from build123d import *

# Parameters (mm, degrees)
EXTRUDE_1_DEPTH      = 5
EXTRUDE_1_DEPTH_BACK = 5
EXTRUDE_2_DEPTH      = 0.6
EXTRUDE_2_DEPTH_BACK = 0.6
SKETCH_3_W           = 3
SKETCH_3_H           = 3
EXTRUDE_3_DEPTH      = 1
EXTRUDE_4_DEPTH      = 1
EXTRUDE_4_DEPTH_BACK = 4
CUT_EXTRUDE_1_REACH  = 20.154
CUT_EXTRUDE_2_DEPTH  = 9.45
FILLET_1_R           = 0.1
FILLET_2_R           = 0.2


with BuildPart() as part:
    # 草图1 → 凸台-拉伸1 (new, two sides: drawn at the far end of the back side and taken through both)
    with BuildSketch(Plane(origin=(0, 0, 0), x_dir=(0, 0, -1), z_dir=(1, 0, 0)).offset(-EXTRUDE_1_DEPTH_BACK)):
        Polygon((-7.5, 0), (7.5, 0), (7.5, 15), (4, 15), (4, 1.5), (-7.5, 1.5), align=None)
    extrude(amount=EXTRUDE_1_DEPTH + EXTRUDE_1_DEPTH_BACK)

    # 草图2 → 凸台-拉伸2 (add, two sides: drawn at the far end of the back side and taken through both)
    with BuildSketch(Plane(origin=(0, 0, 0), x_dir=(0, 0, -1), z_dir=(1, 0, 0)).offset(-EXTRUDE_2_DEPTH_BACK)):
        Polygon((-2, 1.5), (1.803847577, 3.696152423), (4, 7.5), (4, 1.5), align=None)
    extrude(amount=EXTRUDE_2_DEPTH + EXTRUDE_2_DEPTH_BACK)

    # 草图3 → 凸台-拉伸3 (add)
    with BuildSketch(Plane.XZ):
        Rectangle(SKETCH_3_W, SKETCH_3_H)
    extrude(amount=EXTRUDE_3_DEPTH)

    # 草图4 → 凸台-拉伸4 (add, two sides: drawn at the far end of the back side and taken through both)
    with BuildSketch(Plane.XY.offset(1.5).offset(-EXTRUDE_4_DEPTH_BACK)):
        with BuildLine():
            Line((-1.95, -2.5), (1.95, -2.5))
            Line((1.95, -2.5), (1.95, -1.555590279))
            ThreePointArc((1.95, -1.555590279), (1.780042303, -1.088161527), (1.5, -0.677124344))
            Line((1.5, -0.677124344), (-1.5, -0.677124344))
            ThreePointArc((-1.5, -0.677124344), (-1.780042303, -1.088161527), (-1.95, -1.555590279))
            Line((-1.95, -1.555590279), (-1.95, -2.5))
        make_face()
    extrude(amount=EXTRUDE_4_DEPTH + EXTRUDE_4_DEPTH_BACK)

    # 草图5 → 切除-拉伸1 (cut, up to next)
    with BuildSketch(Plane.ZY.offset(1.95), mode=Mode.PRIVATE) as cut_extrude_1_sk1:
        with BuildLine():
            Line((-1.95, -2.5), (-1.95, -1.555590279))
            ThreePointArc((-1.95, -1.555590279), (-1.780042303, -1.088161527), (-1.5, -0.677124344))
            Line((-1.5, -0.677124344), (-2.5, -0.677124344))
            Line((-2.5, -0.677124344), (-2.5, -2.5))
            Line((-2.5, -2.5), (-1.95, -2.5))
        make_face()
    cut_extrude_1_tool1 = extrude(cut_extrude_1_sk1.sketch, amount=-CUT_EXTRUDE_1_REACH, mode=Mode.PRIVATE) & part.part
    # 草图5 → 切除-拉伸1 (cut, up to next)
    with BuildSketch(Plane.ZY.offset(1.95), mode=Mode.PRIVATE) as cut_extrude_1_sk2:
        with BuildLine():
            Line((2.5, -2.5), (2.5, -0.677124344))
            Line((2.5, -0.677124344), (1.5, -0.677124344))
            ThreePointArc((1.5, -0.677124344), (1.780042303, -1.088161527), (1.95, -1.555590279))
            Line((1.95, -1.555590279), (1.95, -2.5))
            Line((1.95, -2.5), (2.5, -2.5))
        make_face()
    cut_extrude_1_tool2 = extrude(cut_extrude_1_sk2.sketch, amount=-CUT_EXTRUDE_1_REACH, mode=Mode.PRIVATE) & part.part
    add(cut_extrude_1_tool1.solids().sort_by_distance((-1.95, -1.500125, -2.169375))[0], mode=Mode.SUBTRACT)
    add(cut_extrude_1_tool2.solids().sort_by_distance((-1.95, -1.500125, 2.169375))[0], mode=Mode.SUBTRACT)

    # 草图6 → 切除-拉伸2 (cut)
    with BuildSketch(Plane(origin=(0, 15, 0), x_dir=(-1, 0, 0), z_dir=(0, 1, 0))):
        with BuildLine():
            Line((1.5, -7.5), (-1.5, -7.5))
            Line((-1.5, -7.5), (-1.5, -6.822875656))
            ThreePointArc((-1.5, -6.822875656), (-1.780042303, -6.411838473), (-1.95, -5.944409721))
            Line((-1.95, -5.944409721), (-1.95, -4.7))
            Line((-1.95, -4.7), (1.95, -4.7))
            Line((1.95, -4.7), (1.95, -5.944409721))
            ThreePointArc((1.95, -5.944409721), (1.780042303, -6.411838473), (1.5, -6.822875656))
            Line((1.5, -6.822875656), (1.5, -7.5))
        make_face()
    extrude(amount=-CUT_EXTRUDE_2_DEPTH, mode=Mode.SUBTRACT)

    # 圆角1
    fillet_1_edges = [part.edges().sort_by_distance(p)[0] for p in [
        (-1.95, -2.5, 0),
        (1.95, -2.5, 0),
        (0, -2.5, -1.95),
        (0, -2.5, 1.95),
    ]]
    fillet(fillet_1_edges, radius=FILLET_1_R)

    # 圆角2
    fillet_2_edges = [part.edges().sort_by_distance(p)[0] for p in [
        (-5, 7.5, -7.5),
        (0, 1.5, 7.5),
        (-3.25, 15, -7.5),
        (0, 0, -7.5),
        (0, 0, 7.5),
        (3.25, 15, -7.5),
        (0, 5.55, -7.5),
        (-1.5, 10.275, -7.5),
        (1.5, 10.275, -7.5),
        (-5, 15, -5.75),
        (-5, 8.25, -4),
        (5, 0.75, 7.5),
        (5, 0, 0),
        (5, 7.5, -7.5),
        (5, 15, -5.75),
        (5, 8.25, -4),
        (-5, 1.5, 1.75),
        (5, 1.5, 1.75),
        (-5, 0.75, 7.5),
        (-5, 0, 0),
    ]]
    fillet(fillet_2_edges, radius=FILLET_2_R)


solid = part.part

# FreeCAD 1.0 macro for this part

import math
import FreeCAD as App
import Part
import Sketcher
Q = App.Units.Quantity


def edges_at(feature, points):
    """Names of the edges that pass closest to the given points."""
    edges = feature.Shape.Edges
    near = lambda p: min(range(len(edges)), key=lambda i: edges[i].distToShape(Part.Vertex(*p))[0])
    return sorted({f"Edge{near(p) + 1}" for p in points})

doc = App.newDocument("Part")
body = doc.addObject("PartDesign::Body", "Body")

sketch1 = body.newObject("Sketcher::SketchObject", "Sketch")
sketch1.AttachmentSupport = (doc.getObject("YZ_Plane"), [""])
sketch1.MapMode = "FlatFace"
sketch1.addGeometry([
    Part.LineSegment(App.Vector(0, 7.5, 0), App.Vector(0, -7.5, 0)),
    Part.LineSegment(App.Vector(0, -7.5, 0), App.Vector(15, -7.5, 0)),
    Part.LineSegment(App.Vector(15, -7.5, 0), App.Vector(15, -4, 0)),
    Part.LineSegment(App.Vector(15, -4, 0), App.Vector(1.5, -4, 0)),
    Part.LineSegment(App.Vector(1.5, -4, 0), App.Vector(1.5, 7.5, 0)),
    Part.LineSegment(App.Vector(1.5, 7.5, 0), App.Vector(0, 7.5, 0)),
], False)
sketch1.addConstraint([
    Sketcher.Constraint("Coincident", 0, 2, 1, 1),
    Sketcher.Constraint("Coincident", 1, 2, 2, 1),
    Sketcher.Constraint("Coincident", 2, 2, 3, 1),
    Sketcher.Constraint("Coincident", 3, 2, 4, 1),
    Sketcher.Constraint("Coincident", 4, 2, 5, 1),
    Sketcher.Constraint("Coincident", 5, 2, 0, 1),
    Sketcher.Constraint("Vertical", 0),
    Sketcher.Constraint("Horizontal", 1),
    Sketcher.Constraint("Vertical", 2),
    Sketcher.Constraint("Horizontal", 3),
    Sketcher.Constraint("Vertical", 4),
    Sketcher.Constraint("Horizontal", 5),
    Sketcher.Constraint("Symmetric", 0, 2, 5, 2, -1, 1),
    Sketcher.Constraint("Equal", 1, 0),
    Sketcher.Constraint("DistanceX", 1, 1, 1, 2, Q("15 mm")),
    Sketcher.Constraint("DistanceX", 3, 2, 3, 1, Q("13.5 mm")),
    Sketcher.Constraint("DistanceY", 2, 1, 2, 2, Q("3.5 mm")),
])
pad1 = body.newObject("PartDesign::Pad", "Pad")
pad1.Profile = sketch1
pad1.Type = "TwoLengths"
pad1.Length = 5
pad1.Length2 = 5

sketch2 = body.newObject("Sketcher::SketchObject", "Sketch001")
sketch2.AttachmentSupport = (doc.getObject("YZ_Plane"), [""])
sketch2.MapMode = "FlatFace"
sketch2.addGeometry([
    Part.LineSegment(App.Vector(3.696152, -1.803848, 0), App.Vector(1.5, 2, 0)),
    Part.LineSegment(App.Vector(1.5, 2, 0), App.Vector(1.5, -4, 0)),
    Part.LineSegment(App.Vector(1.5, -4, 0), App.Vector(7.5, -4, 0)),
    Part.LineSegment(App.Vector(7.5, -4, 0), App.Vector(3.696152, -1.803848, 0)),
], False)
sketch2.addConstraint([
    Sketcher.Constraint("Coincident", 0, 2, 1, 1),
    Sketcher.Constraint("Coincident", 1, 2, 2, 1),
    Sketcher.Constraint("Coincident", 2, 2, 3, 1),
    Sketcher.Constraint("Coincident", 3, 2, 0, 1),
    Sketcher.Constraint("Vertical", 1),
    Sketcher.Constraint("Horizontal", 2),
    Sketcher.Constraint("Equal", 2, 1),
    Sketcher.Constraint("Equal", 0, 3),
    Sketcher.Constraint("DistanceX", 2, 1, 2, 2, Q("6 mm")),
    Sketcher.Constraint("Angle", 0, Q("120 deg")),
    Sketcher.Constraint("DistanceY", -1, 1, 0, 2, Q("2 mm")),
    Sketcher.Constraint("DistanceX", -1, 1, 0, 2, Q("1.5 mm")),
])
pad2 = body.newObject("PartDesign::Pad", "Pad001")
pad2.Profile = sketch2
pad2.Type = "TwoLengths"
pad2.Length = 0.6
pad2.Length2 = 0.6

sketch3 = body.newObject("Sketcher::SketchObject", "Sketch002")
sketch3.AttachmentSupport = (doc.getObject("XZ_Plane"), [""])
sketch3.MapMode = "FlatFace"
sketch3.addGeometry([
    Part.LineSegment(App.Vector(-1.5, 1.5, 0), App.Vector(-1.5, -1.5, 0)),
    Part.LineSegment(App.Vector(-1.5, -1.5, 0), App.Vector(1.5, -1.5, 0)),
    Part.LineSegment(App.Vector(1.5, -1.5, 0), App.Vector(1.5, 1.5, 0)),
    Part.LineSegment(App.Vector(1.5, 1.5, 0), App.Vector(-1.5, 1.5, 0)),
], False)
sketch3.addConstraint([
    Sketcher.Constraint("Coincident", 0, 2, 1, 1),
    Sketcher.Constraint("Coincident", 1, 2, 2, 1),
    Sketcher.Constraint("Coincident", 2, 2, 3, 1),
    Sketcher.Constraint("Coincident", 3, 2, 0, 1),
    Sketcher.Constraint("Vertical", 0),
    Sketcher.Constraint("Horizontal", 1),
    Sketcher.Constraint("Vertical", 2),
    Sketcher.Constraint("Horizontal", 3),
    Sketcher.Constraint("Symmetric", 0, 2, 2, 2, -1, 1),
    Sketcher.Constraint("Equal", 3, 0),
    Sketcher.Constraint("DistanceX", 1, 1, 1, 2, Q("3 mm")),
])
pad3 = body.newObject("PartDesign::Pad", "Pad002")
pad3.Profile = sketch3
pad3.Length = 1

sketch4 = body.newObject("Sketcher::SketchObject", "Sketch003")
sketch4.AttachmentSupport = (doc.getObject("XY_Plane"), [""])
sketch4.MapMode = "FlatFace"
sketch4.AttachmentOffset = App.Placement(App.Vector(0, 0, 1.5), App.Rotation())
sketch4.addGeometry([
    Part.LineSegment(App.Vector(-1.95, -2.5, 0), App.Vector(1.95, -2.5, 0)),
    Part.LineSegment(App.Vector(1.95, -2.5, 0), App.Vector(1.95, -1.55559, 0)),
    Part.ArcOfCircle(Part.Circle(App.Vector(0, -2, 0), App.Vector(0, 0, 1), 2), math.radians(12.838568), math.radians(41.409622)),
    Part.LineSegment(App.Vector(1.5, -0.677124, 0), App.Vector(-1.5, -0.677124, 0)),
    Part.ArcOfCircle(Part.Circle(App.Vector(0, -2, 0), App.Vector(0, 0, 1), 2), math.radians(138.590378), math.radians(167.161432)),
    Part.LineSegment(App.Vector(-1.95, -1.55559, 0), App.Vector(-1.95, -2.5, 0)),
], False)
sketch4.addConstraint([
    Sketcher.Constraint("Coincident", 0, 2, 1, 1),
    Sketcher.Constraint("Coincident", 1, 2, 2, 1),
    Sketcher.Constraint("Coincident", 2, 2, 3, 1),
    Sketcher.Constraint("Coincident", 3, 2, 4, 1),
    Sketcher.Constraint("Coincident", 4, 2, 5, 1),
    Sketcher.Constraint("Coincident", 5, 2, 0, 1),
    Sketcher.Constraint("Horizontal", 0),
    Sketcher.Constraint("Vertical", 1),
    Sketcher.Constraint("Horizontal", 3),
    Sketcher.Constraint("Vertical", 5),
    Sketcher.Constraint("Coincident", 4, 3, 2, 3),
    Sketcher.Constraint("Equal", 2, 4),
    Sketcher.Constraint("Symmetric", 1, 2, 4, 2, -2),
    Sketcher.Constraint("Radius", 2, Q("2 mm")),
    Sketcher.Constraint("DistanceX", 3, 2, 3, 1, Q("3 mm")),
    Sketcher.Constraint("DistanceX", 0, 1, 0, 2, Q("3.9 mm")),
    Sketcher.Constraint("DistanceY", 2, 3, -1, 1, Q("2 mm")),
    Sketcher.Constraint("DistanceY", 0, 2, -1, 1, Q("2.5 mm")),
])
pad4 = body.newObject("PartDesign::Pad", "Pad003")
pad4.Profile = sketch4
pad4.Type = "TwoLengths"
pad4.Length = 1
pad4.Length2 = 4

sketch5 = body.newObject("Sketcher::SketchObject", "Sketch004")
sketch5.AttachmentSupport = (doc.getObject("YZ_Plane"), [""])
sketch5.MapMode = "FlatFace"
sketch5.AttachmentOffset = App.Placement(App.Vector(0, 0, -1.95), App.Rotation())
sketch5.addGeometry([
    Part.LineSegment(App.Vector(-2.5, -1.95, 0), App.Vector(-1.55559, -1.95, 0)),
    Part.ArcOfCircle(Part.Circle(App.Vector(-2, 0, 0), App.Vector(0, 0, 1), 2), math.radians(-77.161432), math.radians(-48.590378)),
    Part.LineSegment(App.Vector(-0.677124, -1.5, 0), App.Vector(-0.677124, -2.5, 0)),
    Part.LineSegment(App.Vector(-0.677124, -2.5, 0), App.Vector(-2.5, -2.5, 0)),
    Part.LineSegment(App.Vector(-2.5, -2.5, 0), App.Vector(-2.5, -1.95, 0)),
], False)
sketch5.addConstraint([
    Sketcher.Constraint("Coincident", 0, 2, 1, 1),
    Sketcher.Constraint("Coincident", 1, 2, 2, 1),
    Sketcher.Constraint("Coincident", 2, 2, 3, 1),
    Sketcher.Constraint("Coincident", 3, 2, 4, 1),
    Sketcher.Constraint("Coincident", 4, 2, 0, 1),
    Sketcher.Constraint("Horizontal", 0),
    Sketcher.Constraint("Vertical", 2),
    Sketcher.Constraint("Horizontal", 3),
    Sketcher.Constraint("Vertical", 4),
    Sketcher.Constraint("PointOnObject", 1, 3, -1),
    Sketcher.Constraint("Radius", 1, Q("2 mm")),
    Sketcher.Constraint("DistanceY", 2, 2, 2, 1, Q("1 mm")),
    Sketcher.Constraint("DistanceX", 1, 3, -1, 1, Q("2 mm")),
    Sketcher.Constraint("DistanceY", 4, 1, 4, 2, Q("0.55 mm")),
    Sketcher.Constraint("DistanceY", 1, 2, -1, 1, Q("1.5 mm")),
    Sketcher.Constraint("DistanceX", 3, 2, -1, 1, Q("2.5 mm")),
])
pocket1 = body.newObject("PartDesign::Pocket", "Pocket")
pocket1.Profile = sketch5
pocket1.Length = 3.9
pocket1.Reversed = True

sketch6 = body.newObject("Sketcher::SketchObject", "Sketch005")
sketch6.AttachmentSupport = (doc.getObject("YZ_Plane"), [""])
sketch6.MapMode = "FlatFace"
sketch6.AttachmentOffset = App.Placement(App.Vector(0, 0, -1.95), App.Rotation())
sketch6.addGeometry([
    Part.LineSegment(App.Vector(-2.5, 2.5, 0), App.Vector(-0.677124, 2.5, 0)),
    Part.LineSegment(App.Vector(-0.677124, 2.5, 0), App.Vector(-0.677124, 1.5, 0)),
    Part.ArcOfCircle(Part.Circle(App.Vector(-2, 0, 0), App.Vector(0, 0, 1), 2), math.radians(48.590378), math.radians(77.161432)),
    Part.LineSegment(App.Vector(-1.55559, 1.95, 0), App.Vector(-2.5, 1.95, 0)),
    Part.LineSegment(App.Vector(-2.5, 1.95, 0), App.Vector(-2.5, 2.5, 0)),
], False)
sketch6.addConstraint([
    Sketcher.Constraint("Coincident", 0, 2, 1, 1),
    Sketcher.Constraint("Coincident", 1, 2, 2, 1),
    Sketcher.Constraint("Coincident", 2, 2, 3, 1),
    Sketcher.Constraint("Coincident", 3, 2, 4, 1),
    Sketcher.Constraint("Coincident", 4, 2, 0, 1),
    Sketcher.Constraint("Horizontal", 0),
    Sketcher.Constraint("Vertical", 1),
    Sketcher.Constraint("Horizontal", 3),
    Sketcher.Constraint("Vertical", 4),
    Sketcher.Constraint("PointOnObject", 2, 3, -1),
    Sketcher.Constraint("Radius", 2, Q("2 mm")),
    Sketcher.Constraint("DistanceY", 1, 2, 1, 1, Q("1 mm")),
    Sketcher.Constraint("DistanceX", 2, 3, -1, 1, Q("2 mm")),
    Sketcher.Constraint("DistanceY", 4, 1, 4, 2, Q("0.55 mm")),
    Sketcher.Constraint("DistanceY", -1, 1, 0, 2, Q("2.5 mm")),
    Sketcher.Constraint("DistanceX", 3, 2, -1, 1, Q("2.5 mm")),
])
pocket2 = body.newObject("PartDesign::Pocket", "Pocket001")
pocket2.Profile = sketch6
pocket2.Length = 3.9
pocket2.Reversed = True

sketch7 = body.newObject("Sketcher::SketchObject", "Sketch006")
sketch7.AttachmentSupport = (doc.getObject("XZ_Plane"), [""])
sketch7.MapMode = "FlatFace"
sketch7.AttachmentOffset = App.Placement(App.Vector(0, 0, -15), App.Rotation())
sketch7.addGeometry([
    Part.LineSegment(App.Vector(1.5, -7.5, 0), App.Vector(-1.5, -7.5, 0)),
    Part.LineSegment(App.Vector(-1.5, -7.5, 0), App.Vector(-1.5, -6.822876, 0)),
    Part.ArcOfCircle(Part.Circle(App.Vector(0, -5.5, 0), App.Vector(0, 0, 1), 2), math.radians(-167.161432), math.radians(-138.590378)),
    Part.LineSegment(App.Vector(-1.95, -5.94441, 0), App.Vector(-1.95, -4.7, 0)),
    Part.LineSegment(App.Vector(-1.95, -4.7, 0), App.Vector(1.95, -4.7, 0)),
    Part.LineSegment(App.Vector(1.95, -4.7, 0), App.Vector(1.95, -5.94441, 0)),
    Part.ArcOfCircle(Part.Circle(App.Vector(0, -5.5, 0), App.Vector(0, 0, 1), 2), math.radians(-41.409622), math.radians(-12.838568)),
    Part.LineSegment(App.Vector(1.5, -6.822876, 0), App.Vector(1.5, -7.5, 0)),
], False)
sketch7.addConstraint([
    Sketcher.Constraint("Coincident", 0, 2, 1, 1),
    Sketcher.Constraint("Coincident", 1, 2, 2, 2),
    Sketcher.Constraint("Coincident", 2, 1, 3, 1),
    Sketcher.Constraint("Coincident", 3, 2, 4, 1),
    Sketcher.Constraint("Coincident", 4, 2, 5, 1),
    Sketcher.Constraint("Coincident", 5, 2, 6, 2),
    Sketcher.Constraint("Coincident", 6, 1, 7, 1),
    Sketcher.Constraint("Coincident", 7, 2, 0, 1),
    Sketcher.Constraint("Horizontal", 0),
    Sketcher.Constraint("Vertical", 1),
    Sketcher.Constraint("Vertical", 3),
    Sketcher.Constraint("Horizontal", 4),
    Sketcher.Constraint("Vertical", 5),
    Sketcher.Constraint("Vertical", 7),
    Sketcher.Constraint("Coincident", 6, 3, 2, 3),
    Sketcher.Constraint("Equal", 2, 6),
    Sketcher.Constraint("Symmetric", 2, 1, 5, 2, -2),
    Sketcher.Constraint("Horizontal", 1, 2, 6, 1),
    Sketcher.Constraint("Radius", 2, Q("2 mm")),
    Sketcher.Constraint("DistanceX", 0, 2, 0, 1, Q("3 mm")),
    Sketcher.Constraint("DistanceX", 4, 1, 4, 2, Q("3.9 mm")),
    Sketcher.Constraint("DistanceY", 0, 2, 2, 3, Q("2 mm")),
    Sketcher.Constraint("DistanceY", 2, 3, -1, 1, Q("5.5 mm")),
    Sketcher.Constraint("DistanceY", 3, 2, -1, 1, Q("4.7 mm")),
])
pocket3 = body.newObject("PartDesign::Pocket", "Pocket002")
pocket3.Profile = sketch7
pocket3.Length = 9.45
pocket3.Reversed = True
doc.recompute()

fillet = body.newObject("PartDesign::Fillet", "Fillet")
fillet.Base = (pocket3, edges_at(pocket3, [
    (-1.95, -2.5, 0),
    (1.95, -2.5, 0),
    (0, -2.5, -1.95),
    (0, -2.5, 1.95),
]))
fillet.Radius = 0.1
doc.recompute()

fillet2 = body.newObject("PartDesign::Fillet", "Fillet001")
fillet2.Base = (fillet, edges_at(fillet, [
    (-5, 7.5, -7.5),
    (0, 1.5, 7.5),
    (-3.25, 15, -7.5),
    (0, 0, -7.5),
    (0, 0, 7.5),
    (3.25, 15, -7.5),
    (0, 5.55, -7.5),
    (-1.5, 10.275, -7.5),
    (1.5, 10.275, -7.5),
    (-5, 15, -5.75),
    (-5, 8.25, -4),
    (5, 0.75, 7.5),
    (5, 0, 0),
    (5, 7.5, -7.5),
    (5, 15, -5.75),
    (5, 8.25, -4),
    (-5, 1.5, 1.75),
    (5, 1.5, 1.75),
    (-5, 0.75, 7.5),
    (-5, 0, 0),
]))
fillet2.Radius = 0.2

doc.recompute()
